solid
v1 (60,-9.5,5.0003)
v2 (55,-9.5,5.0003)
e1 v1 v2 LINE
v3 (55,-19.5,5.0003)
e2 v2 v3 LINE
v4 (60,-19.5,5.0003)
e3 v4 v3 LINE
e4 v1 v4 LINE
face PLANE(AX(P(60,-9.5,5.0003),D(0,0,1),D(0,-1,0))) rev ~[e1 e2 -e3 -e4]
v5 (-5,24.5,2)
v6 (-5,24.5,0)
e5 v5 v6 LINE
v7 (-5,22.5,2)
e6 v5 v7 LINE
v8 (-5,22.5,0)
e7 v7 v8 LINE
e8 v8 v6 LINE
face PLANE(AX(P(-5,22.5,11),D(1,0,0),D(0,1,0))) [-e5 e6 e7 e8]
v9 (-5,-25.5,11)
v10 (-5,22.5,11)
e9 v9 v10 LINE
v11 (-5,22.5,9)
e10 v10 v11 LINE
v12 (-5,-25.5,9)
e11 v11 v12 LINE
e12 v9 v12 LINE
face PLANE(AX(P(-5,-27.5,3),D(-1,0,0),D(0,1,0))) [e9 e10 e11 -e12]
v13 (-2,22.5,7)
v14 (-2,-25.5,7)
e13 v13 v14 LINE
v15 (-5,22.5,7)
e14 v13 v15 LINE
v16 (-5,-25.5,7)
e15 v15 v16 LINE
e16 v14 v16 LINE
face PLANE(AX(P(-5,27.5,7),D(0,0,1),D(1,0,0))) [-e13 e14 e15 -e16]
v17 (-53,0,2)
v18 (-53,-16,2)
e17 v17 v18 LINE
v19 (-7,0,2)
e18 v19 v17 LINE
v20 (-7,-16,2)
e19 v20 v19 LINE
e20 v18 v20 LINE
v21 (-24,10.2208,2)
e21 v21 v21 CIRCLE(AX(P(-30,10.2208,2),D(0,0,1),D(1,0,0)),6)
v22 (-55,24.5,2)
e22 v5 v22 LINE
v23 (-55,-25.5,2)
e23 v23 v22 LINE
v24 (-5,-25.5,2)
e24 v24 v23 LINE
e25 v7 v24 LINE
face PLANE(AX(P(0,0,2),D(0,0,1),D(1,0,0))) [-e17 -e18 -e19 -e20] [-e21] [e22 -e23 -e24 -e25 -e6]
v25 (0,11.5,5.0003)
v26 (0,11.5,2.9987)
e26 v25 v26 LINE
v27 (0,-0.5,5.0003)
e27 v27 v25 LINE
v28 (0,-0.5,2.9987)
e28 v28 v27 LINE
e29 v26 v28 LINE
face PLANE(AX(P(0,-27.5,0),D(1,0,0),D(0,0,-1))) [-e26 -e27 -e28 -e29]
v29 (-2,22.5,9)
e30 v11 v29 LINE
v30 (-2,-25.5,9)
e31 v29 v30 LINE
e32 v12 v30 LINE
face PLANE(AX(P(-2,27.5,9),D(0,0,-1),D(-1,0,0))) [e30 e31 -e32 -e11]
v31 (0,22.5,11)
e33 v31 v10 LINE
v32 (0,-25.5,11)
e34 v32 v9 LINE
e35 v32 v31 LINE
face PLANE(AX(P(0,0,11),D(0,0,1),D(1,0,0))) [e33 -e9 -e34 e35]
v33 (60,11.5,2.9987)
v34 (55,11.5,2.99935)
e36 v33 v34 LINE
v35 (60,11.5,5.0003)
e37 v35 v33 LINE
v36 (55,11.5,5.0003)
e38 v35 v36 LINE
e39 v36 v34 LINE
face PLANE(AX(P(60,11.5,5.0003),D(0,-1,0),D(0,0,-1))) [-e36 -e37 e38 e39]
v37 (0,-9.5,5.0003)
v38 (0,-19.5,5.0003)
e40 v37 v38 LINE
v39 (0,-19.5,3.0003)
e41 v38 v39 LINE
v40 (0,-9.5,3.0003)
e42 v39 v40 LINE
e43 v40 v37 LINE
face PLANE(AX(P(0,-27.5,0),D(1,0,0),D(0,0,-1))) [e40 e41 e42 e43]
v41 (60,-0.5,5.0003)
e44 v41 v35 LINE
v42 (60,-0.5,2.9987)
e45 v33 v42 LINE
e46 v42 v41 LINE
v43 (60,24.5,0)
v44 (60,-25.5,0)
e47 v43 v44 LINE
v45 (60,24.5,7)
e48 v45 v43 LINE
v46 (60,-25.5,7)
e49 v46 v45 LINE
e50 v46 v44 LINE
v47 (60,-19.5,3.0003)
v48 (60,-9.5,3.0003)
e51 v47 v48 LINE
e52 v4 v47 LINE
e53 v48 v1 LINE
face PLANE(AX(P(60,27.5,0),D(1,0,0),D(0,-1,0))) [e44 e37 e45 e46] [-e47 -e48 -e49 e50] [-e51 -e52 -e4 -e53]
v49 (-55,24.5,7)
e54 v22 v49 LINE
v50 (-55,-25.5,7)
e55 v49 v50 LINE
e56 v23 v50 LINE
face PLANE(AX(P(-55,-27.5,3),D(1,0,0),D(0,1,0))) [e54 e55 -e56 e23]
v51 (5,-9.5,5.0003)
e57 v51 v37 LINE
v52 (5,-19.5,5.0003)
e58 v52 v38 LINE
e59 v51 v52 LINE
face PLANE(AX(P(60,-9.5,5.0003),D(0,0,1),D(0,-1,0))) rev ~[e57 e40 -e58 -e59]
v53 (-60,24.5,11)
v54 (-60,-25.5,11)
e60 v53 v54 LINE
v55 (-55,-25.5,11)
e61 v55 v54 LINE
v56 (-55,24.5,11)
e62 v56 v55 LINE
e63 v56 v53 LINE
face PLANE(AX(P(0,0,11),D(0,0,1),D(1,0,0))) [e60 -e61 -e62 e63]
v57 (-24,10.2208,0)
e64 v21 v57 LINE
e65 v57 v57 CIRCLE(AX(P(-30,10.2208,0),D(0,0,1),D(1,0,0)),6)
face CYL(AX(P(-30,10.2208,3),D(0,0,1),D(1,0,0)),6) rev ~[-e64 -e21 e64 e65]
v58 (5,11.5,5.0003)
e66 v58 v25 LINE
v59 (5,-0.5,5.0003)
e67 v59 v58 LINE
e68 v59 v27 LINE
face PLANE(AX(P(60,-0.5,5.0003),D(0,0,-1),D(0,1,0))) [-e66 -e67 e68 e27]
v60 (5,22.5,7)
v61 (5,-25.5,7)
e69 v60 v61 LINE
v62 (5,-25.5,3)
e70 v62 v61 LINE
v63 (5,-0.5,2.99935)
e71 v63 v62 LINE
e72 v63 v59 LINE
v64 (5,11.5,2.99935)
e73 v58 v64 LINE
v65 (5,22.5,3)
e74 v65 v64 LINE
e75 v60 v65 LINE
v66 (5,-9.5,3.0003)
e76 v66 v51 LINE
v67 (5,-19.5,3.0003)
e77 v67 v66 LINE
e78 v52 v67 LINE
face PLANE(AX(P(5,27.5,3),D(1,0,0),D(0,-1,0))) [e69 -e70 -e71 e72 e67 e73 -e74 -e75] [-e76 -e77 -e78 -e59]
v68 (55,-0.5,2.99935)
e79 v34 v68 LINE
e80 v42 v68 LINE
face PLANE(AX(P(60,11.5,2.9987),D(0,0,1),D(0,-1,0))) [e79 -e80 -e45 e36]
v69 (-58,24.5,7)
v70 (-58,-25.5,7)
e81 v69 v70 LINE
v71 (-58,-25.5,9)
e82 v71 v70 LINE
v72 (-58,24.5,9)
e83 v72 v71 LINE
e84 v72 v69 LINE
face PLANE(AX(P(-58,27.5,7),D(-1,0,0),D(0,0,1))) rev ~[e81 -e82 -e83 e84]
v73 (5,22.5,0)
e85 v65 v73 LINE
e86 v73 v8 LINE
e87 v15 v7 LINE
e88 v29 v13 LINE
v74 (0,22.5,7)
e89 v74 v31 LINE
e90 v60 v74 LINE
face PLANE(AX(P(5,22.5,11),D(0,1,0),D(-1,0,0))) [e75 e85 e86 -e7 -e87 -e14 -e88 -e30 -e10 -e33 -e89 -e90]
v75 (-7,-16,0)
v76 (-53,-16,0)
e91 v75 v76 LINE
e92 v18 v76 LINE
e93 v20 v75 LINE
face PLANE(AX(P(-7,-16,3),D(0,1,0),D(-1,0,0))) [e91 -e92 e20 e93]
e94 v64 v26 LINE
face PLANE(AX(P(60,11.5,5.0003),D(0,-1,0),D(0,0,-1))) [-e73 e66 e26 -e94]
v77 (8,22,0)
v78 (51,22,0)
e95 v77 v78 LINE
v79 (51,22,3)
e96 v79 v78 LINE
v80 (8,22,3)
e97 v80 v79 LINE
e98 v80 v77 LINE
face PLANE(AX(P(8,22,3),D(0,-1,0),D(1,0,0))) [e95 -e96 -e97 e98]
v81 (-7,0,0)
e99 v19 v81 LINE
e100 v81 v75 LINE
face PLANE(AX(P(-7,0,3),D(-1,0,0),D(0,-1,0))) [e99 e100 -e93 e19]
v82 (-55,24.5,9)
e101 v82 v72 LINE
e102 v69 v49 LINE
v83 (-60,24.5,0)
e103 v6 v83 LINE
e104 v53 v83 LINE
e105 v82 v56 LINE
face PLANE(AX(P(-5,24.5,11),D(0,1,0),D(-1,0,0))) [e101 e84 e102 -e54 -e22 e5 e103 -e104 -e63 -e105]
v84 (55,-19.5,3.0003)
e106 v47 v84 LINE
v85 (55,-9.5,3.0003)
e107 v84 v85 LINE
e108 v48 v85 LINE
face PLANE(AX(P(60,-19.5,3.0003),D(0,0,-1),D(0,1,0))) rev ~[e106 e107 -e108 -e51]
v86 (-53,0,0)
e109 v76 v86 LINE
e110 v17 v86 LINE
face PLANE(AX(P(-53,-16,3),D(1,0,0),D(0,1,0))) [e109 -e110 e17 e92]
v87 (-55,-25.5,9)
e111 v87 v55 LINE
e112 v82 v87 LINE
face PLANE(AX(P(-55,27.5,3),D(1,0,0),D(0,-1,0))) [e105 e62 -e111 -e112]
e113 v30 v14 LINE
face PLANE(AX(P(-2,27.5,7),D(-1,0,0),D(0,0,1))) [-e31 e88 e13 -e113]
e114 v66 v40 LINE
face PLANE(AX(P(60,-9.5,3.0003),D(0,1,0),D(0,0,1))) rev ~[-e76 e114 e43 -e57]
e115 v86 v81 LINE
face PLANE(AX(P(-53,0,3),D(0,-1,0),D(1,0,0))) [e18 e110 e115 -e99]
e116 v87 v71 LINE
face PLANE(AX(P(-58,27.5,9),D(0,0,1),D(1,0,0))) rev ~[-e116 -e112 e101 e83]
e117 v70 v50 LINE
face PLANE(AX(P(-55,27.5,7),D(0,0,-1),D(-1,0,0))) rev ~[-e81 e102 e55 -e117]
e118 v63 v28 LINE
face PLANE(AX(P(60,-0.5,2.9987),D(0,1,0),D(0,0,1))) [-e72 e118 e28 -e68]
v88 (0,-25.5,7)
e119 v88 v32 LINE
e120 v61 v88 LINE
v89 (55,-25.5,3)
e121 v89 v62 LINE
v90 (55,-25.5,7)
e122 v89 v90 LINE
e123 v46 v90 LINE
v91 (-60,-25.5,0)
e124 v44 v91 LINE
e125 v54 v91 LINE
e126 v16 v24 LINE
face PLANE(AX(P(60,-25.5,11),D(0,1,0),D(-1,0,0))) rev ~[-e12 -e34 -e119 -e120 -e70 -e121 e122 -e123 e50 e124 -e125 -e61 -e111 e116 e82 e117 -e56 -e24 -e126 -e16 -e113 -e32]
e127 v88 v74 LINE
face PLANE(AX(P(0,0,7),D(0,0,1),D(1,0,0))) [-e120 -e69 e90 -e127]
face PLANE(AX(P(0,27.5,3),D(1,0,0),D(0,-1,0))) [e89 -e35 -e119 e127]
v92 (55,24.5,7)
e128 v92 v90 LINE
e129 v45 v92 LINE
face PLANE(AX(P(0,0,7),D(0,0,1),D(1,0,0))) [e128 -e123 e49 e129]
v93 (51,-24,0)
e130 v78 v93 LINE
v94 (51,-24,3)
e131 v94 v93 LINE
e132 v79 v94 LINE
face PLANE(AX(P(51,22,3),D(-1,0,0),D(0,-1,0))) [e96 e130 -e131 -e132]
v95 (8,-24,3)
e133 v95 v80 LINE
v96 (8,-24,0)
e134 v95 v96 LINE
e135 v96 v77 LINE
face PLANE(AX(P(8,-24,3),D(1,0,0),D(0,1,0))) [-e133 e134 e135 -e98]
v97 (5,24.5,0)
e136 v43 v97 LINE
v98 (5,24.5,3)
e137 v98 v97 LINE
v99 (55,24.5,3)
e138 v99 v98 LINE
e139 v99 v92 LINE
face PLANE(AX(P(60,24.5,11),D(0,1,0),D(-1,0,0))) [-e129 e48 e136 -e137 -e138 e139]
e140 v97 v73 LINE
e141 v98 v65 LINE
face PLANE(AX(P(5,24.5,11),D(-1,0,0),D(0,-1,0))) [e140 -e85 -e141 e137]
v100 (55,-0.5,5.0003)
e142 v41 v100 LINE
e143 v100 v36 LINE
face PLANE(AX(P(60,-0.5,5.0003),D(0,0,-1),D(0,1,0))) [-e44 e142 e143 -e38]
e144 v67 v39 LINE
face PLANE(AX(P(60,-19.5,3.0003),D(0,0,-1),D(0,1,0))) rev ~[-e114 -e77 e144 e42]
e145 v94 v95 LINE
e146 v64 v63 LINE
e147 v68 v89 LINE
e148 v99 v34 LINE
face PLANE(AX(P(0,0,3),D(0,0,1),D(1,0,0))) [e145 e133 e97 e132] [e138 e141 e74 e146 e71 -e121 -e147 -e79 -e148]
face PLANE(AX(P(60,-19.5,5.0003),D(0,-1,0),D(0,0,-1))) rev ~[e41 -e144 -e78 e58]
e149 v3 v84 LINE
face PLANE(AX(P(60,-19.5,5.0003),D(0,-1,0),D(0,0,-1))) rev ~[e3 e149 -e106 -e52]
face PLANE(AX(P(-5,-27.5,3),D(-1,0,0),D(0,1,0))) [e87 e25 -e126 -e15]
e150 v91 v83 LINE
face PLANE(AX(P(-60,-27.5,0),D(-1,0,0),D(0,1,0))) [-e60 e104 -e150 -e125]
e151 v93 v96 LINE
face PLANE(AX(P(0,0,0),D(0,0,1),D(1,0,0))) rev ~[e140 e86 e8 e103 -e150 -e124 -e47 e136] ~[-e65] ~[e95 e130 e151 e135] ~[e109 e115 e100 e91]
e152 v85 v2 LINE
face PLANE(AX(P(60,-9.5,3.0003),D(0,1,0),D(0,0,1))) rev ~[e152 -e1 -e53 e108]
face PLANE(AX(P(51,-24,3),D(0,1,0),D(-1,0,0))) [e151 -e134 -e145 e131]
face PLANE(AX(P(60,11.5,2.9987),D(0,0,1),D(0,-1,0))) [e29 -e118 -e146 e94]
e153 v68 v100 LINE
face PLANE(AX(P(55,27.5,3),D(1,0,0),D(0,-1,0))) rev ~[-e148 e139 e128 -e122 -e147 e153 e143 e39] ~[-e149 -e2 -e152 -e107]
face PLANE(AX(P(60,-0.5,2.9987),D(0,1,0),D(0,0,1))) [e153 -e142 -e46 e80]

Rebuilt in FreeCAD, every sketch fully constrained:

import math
import FreeCAD as App
import Part
import Sketcher
from FreeCAD import Vector
Q = App.Units.Quantity

doc = App.newDocument("Part")
body = doc.addObject("PartDesign::Body", "Body")

sketch1 = doc.addObject("Sketcher::SketchObject", "Sketch")
body.addObject(sketch1)
sketch1.AttachmentSupport = (doc.XY_Plane, [""])
sketch1.MapMode = "FlatFace"
sketch1.addGeometry([
    Part.LineSegment(Vector(-4, 27.5, 0), Vector(-60, 27.5, 0)),
    Part.LineSegment(Vector(-60, 27.5, 0), Vector(-60, -27.5, 0)),
    Part.LineSegment(Vector(-60, -27.5, 0), Vector(60, -27.5, 0)),
    Part.LineSegment(Vector(60, -27.5, 0), Vector(60, 27.5, 0)),
    Part.LineSegment(Vector(60, 27.5, 0), Vector(4, 27.5, 0)),
    Part.ArcOfCircle(Part.Circle(Vector(0, 27.5, 0), Vector(0, 0, 1), 4), math.radians(180), math.radians(360)),
    Part.LineSegment(Vector(-50, -3, 0), Vector(-40, -3, 0)),
    Part.LineSegment(Vector(-40, -3, 0), Vector(-40, -13, 0)),
    Part.LineSegment(Vector(-40, -13, 0), Vector(-50, -13, 0)),
    Part.LineSegment(Vector(-50, -13, 0), Vector(-50, -3, 0)),
    Part.LineSegment(Vector(-35, -3, 0), Vector(-25, -3, 0)),
    Part.LineSegment(Vector(-25, -3, 0), Vector(-25, -13, 0)),
    Part.LineSegment(Vector(-25, -13, 0), Vector(-35, -13, 0)),
    Part.LineSegment(Vector(-35, -13, 0), Vector(-35, -3, 0)),
    Part.LineSegment(Vector(-10, -3, 0), Vector(-10, -13, 0)),
    Part.LineSegment(Vector(-10, -13, 0), Vector(-20, -13, 0)),
    Part.LineSegment(Vector(-20, -13, 0), Vector(-20, -3, 0)),
    Part.LineSegment(Vector(-20, -3, 0), Vector(-10, -3, 0)),
    Part.Circle(Vector(-30, 10.2, 0), Vector(0, 0, 1), 3),
    Part.LineSegment(Vector(50, -17, 0), Vector(10, -17, 0)),
    Part.LineSegment(Vector(10, -17, 0), Vector(10, 17, 0)),
    Part.LineSegment(Vector(10, 17, 0), Vector(50, 17, 0)),
    Part.LineSegment(Vector(50, 17, 0), Vector(50, -17, 0)),
], False)
sketch1.addConstraint([
    Sketcher.Constraint("Coincident", 0, 2, 1, 1),
    Sketcher.Constraint("Coincident", 1, 2, 2, 1),
    Sketcher.Constraint("Coincident", 2, 2, 3, 1),
    Sketcher.Constraint("Coincident", 3, 2, 4, 1),
    Sketcher.Constraint("Coincident", 4, 2, 5, 2),
    Sketcher.Constraint("Coincident", 5, 1, 0, 1),
    Sketcher.Constraint("Coincident", 6, 2, 7, 1),
    Sketcher.Constraint("Coincident", 7, 2, 8, 1),
    Sketcher.Constraint("Coincident", 8, 2, 9, 1),
    Sketcher.Constraint("Coincident", 9, 2, 6, 1),
    Sketcher.Constraint("Coincident", 10, 2, 11, 1),
    Sketcher.Constraint("Coincident", 11, 2, 12, 1),
    Sketcher.Constraint("Coincident", 12, 2, 13, 1),
    Sketcher.Constraint("Coincident", 13, 2, 10, 1),
    Sketcher.Constraint("Coincident", 14, 2, 15, 1),
    Sketcher.Constraint("Coincident", 15, 2, 16, 1),
    Sketcher.Constraint("Coincident", 16, 2, 17, 1),
    Sketcher.Constraint("Coincident", 17, 2, 14, 1),
    Sketcher.Constraint("Coincident", 19, 2, 20, 1),
    Sketcher.Constraint("Coincident", 20, 2, 21, 1),
    Sketcher.Constraint("Coincident", 21, 2, 22, 1),
    Sketcher.Constraint("Coincident", 22, 2, 19, 1),
    Sketcher.Constraint("Horizontal", 0),
    Sketcher.Constraint("Vertical", 1),
    Sketcher.Constraint("Horizontal", 2),
    Sketcher.Constraint("Vertical", 3),
    Sketcher.Constraint("Horizontal", 4),
    Sketcher.Constraint("Horizontal", 6),
    Sketcher.Constraint("Vertical", 7),
    Sketcher.Constraint("Horizontal", 8),
    Sketcher.Constraint("Vertical", 9),
    Sketcher.Constraint("Horizontal", 10),
    Sketcher.Constraint("Vertical", 11),
    Sketcher.Constraint("Horizontal", 12),
    Sketcher.Constraint("Vertical", 13),
    Sketcher.Constraint("Vertical", 14),
    Sketcher.Constraint("Horizontal", 15),
    Sketcher.Constraint("Vertical", 16),
    Sketcher.Constraint("Horizontal", 17),
    Sketcher.Constraint("Horizontal", 19),
    Sketcher.Constraint("Vertical", 20),
    Sketcher.Constraint("Horizontal", 21),
    Sketcher.Constraint("Vertical", 22),
    Sketcher.Constraint("Symmetric", 0, 2, 2, 2, -1, 1),
    Sketcher.Constraint("Symmetric", 4, 2, 5, 1, -2),
    Sketcher.Constraint("Horizontal", 5, 3, 0, 2),
    Sketcher.Constraint("Horizontal", 9, 2, 10, 2),
    Sketcher.Constraint("Horizontal", 8, 2, 11, 2),
    Sketcher.Constraint("Horizontal", 12, 2, 14, 2),
    Sketcher.Constraint("Horizontal", 13, 2, 16, 2),
    Sketcher.Constraint("Equal", 8, 10),
    Sketcher.Constraint("Equal", 12, 15),
    Sketcher.Constraint("Equal", 17, 7),
    Sketcher.Constraint("Diameter", 18, Q("6 mm")),
    Sketcher.Constraint("Radius", 5, Q("4 mm")),
    Sketcher.Constraint("DistanceX", 4, 2, 20, 2, Q("6 mm")),
    Sketcher.Constraint("DistanceX", 0, 2, 0, 1, Q("56 mm")),
    Sketcher.Constraint("DistanceX", 6, 1, 6, 2, Q("10 mm")),
    Sketcher.Constraint("DistanceX", 19, 2, 19, 1, Q("40 mm")),
    Sketcher.Constraint("DistanceY", 1, 2, 1, 1, Q("55 mm")),
    Sketcher.Constraint("DistanceY", 20, 1, 20, 2, Q("34 mm")),
    Sketcher.Constraint("DistanceX", 18, 3, -1, 1, Q("30 mm")),
    Sketcher.Constraint("DistanceX", 6, 2, -1, 1, Q("40 mm")),
    Sketcher.Constraint("DistanceY", 6, 2, -1, 1, Q("3 mm")),
    Sketcher.Constraint("DistanceX", 10, 2, -1, 1, Q("25 mm")),
    Sketcher.Constraint("DistanceX", 14, 2, -1, 1, Q("10 mm")),
    Sketcher.Constraint("DistanceY", 19, 2, -1, 1, Q("17 mm")),
    Sketcher.Constraint("DistanceY", -1, 1, 18, 3, Q("10.2208 mm")),
])
pad1 = doc.addObject("PartDesign::Pad", "Pad")
body.addObject(pad1)
pad1.Profile = sketch1
pad1.Length = 3

sketch2 = doc.addObject("Sketcher::SketchObject", "Sketch001")
body.addObject(sketch2)
sketch2.AttachmentSupport = (doc.XY_Plane, [""])
sketch2.MapMode = "FlatFace"
sketch2.AttachmentOffset = App.Placement(Vector(0, 0, 3), App.Rotation())
sketch2.addGeometry([
    Part.LineSegment(Vector(51, 22, 0), Vector(8, 22, 0)),
    Part.LineSegment(Vector(8, 22, 0), Vector(8, -24, 0)),
    Part.LineSegment(Vector(8, -24, 0), Vector(51, -24, 0)),
    Part.LineSegment(Vector(51, -24, 0), Vector(51, 22, 0)),
    Part.LineSegment(Vector(10, -17, 0), Vector(10, 17, 0)),
    Part.LineSegment(Vector(10, 17, 0), Vector(50, 17, 0)),
    Part.LineSegment(Vector(50, 17, 0), Vector(50, -17, 0)),
    Part.LineSegment(Vector(50, -17, 0), Vector(10, -17, 0)),
    Part.Circle(Vector(-30, 10.2, 0), Vector(0, 0, 1), 6),
    Part.Circle(Vector(-30, 10.2, 0), Vector(0, 0, 1), 3),
    Part.LineSegment(Vector(-7, 0, 0), Vector(-53, 0, 0)),
    Part.LineSegment(Vector(-53, 0, 0), Vector(-53, -16, 0)),
    Part.LineSegment(Vector(-53, -16, 0), Vector(-7, -16, 0)),
    Part.LineSegment(Vector(-7, -16, 0), Vector(-7, 0, 0)),
], False)
sketch2.addConstraint([
    Sketcher.Constraint("Coincident", 0, 2, 1, 1),
    Sketcher.Constraint("Coincident", 1, 2, 2, 1),
    Sketcher.Constraint("Coincident", 2, 2, 3, 1),
    Sketcher.Constraint("Coincident", 3, 2, 0, 1),
    Sketcher.Constraint("Coincident", 4, 2, 5, 1),
    Sketcher.Constraint("Coincident", 5, 2, 6, 1),
    Sketcher.Constraint("Coincident", 6, 2, 7, 1),
    Sketcher.Constraint("Coincident", 7, 2, 4, 1),
    Sketcher.Constraint("Coincident", 10, 2, 11, 1),
    Sketcher.Constraint("Coincident", 11, 2, 12, 1),
    Sketcher.Constraint("Coincident", 12, 2, 13, 1),
    Sketcher.Constraint("Coincident", 13, 2, 10, 1),
    Sketcher.Constraint("Horizontal", 0),
    Sketcher.Constraint("Vertical", 1),
    Sketcher.Constraint("Horizontal", 2),
    Sketcher.Constraint("Vertical", 3),
    Sketcher.Constraint("Vertical", 4),
    Sketcher.Constraint("Horizontal", 5),
    Sketcher.Constraint("Vertical", 6),
    Sketcher.Constraint("Horizontal", 7),
    Sketcher.Constraint("Horizontal", 10),
    Sketcher.Constraint("Vertical", 11),
    Sketcher.Constraint("Horizontal", 12),
    Sketcher.Constraint("Vertical", 13),
    Sketcher.Constraint("Coincident", 9, 3, 8, 3),
    Sketcher.Constraint("PointOnObject", 10, 2, -1),
    Sketcher.Constraint("Equal", 12, 1),
    Sketcher.Constraint("Diameter", 8, Q("12 mm")),
    Sketcher.Constraint("Diameter", 9, Q("6 mm")),
    Sketcher.Constraint("DistanceX", 12, 2, -1, 1, Q("7 mm")),
    Sketcher.Constraint("DistanceX", 0, 2, 4, 2, Q("2 mm")),
    Sketcher.Constraint("DistanceY", 4, 2, 0, 2, Q("5 mm")),
    Sketcher.Constraint("DistanceX", 5, 2, 3, 2, Q("1 mm")),
    Sketcher.Constraint("DistanceY", 2, 2, 6, 2, Q("7 mm")),
    Sketcher.Constraint("DistanceY", 7, 2, 11, 2, Q("1 mm")),
    Sketcher.Constraint("DistanceX", 0, 2, 0, 1, Q("43 mm")),
    Sketcher.Constraint("DistanceX", 10, 2, 10, 1, Q("46 mm")),
    Sketcher.Constraint("DistanceY", 11, 2, 11, 1, Q("16 mm")),
    Sketcher.Constraint("DistanceX", 8, 3, -1, 1, Q("30 mm")),
    Sketcher.Constraint("DistanceX", -1, 1, 0, 2, Q("8 mm")),
    Sketcher.Constraint("DistanceY", -1, 1, 8, 3, Q("10.2208 mm")),
])
pocket1 = doc.addObject("PartDesign::Pocket", "Pocket")
body.addObject(pocket1)
pocket1.Profile = sketch2
pocket1.Length = 3

sketch3 = doc.addObject("Sketcher::SketchObject", "Sketch002")
body.addObject(sketch3)
sketch3.AttachmentSupport = (doc.XY_Plane, [""])
sketch3.MapMode = "FlatFace"
sketch3.AttachmentOffset = App.Placement(Vector(0, 0, 3), App.Rotation())
sketch3.addGeometry([
    Part.LineSegment(Vector(-55, 28, 0), Vector(-60, 28, 0)),
    Part.LineSegment(Vector(-60, 28, 0), Vector(-60, -28, 0)),
    Part.LineSegment(Vector(-60, -28, 0), Vector(-55, -28, 0)),
    Part.LineSegment(Vector(-55, -28, 0), Vector(-55, 28, 0)),
    Part.LineSegment(Vector(-5, 28, 0), Vector(-5, -28, 0)),
    Part.LineSegment(Vector(-5, -28, 0), Vector(0, -28, 0)),
    Part.LineSegment(Vector(0, -28, 0), Vector(0, 28, 0)),
    Part.LineSegment(Vector(0, 28, 0), Vector(-5, 28, 0)),
], False)
sketch3.addConstraint([
    Sketcher.Constraint("Coincident", 0, 2, 1, 1),
    Sketcher.Constraint("Coincident", 1, 2, 2, 1),
    Sketcher.Constraint("Coincident", 2, 2, 3, 1),
    Sketcher.Constraint("Coincident", 3, 2, 0, 1),
    Sketcher.Constraint("Coincident", 4, 2, 5, 1),
    Sketcher.Constraint("Coincident", 5, 2, 6, 1),
    Sketcher.Constraint("Coincident", 6, 2, 7, 1),
    Sketcher.Constraint("Coincident", 7, 2, 4, 1),
    Sketcher.Constraint("Horizontal", 0),
    Sketcher.Constraint("Vertical", 1),
    Sketcher.Constraint("Horizontal", 2),
    Sketcher.Constraint("Vertical", 3),
    Sketcher.Constraint("Vertical", 4),
    Sketcher.Constraint("Horizontal", 5),
    Sketcher.Constraint("Vertical", 6),
    Sketcher.Constraint("Horizontal", 7),
    Sketcher.Constraint("Symmetric", 5, 2, 6, 2, -1, 1),
    Sketcher.Constraint("Horizontal", 2, 2, 4, 2),
    Sketcher.Constraint("Horizontal", 3, 2, 6, 2),
    Sketcher.Constraint("Equal", 2, 5),
    Sketcher.Constraint("DistanceX", 0, 2, 0, 1, Q("5 mm")),
    Sketcher.Constraint("DistanceY", 1, 2, 1, 1, Q("55 mm")),
    Sketcher.Constraint("DistanceX", 0, 2, -1, 1, Q("60 mm")),
])
pad2 = doc.addObject("PartDesign::Pad", "Pad001")
body.addObject(pad2)
pad2.Profile = sketch3
pad2.Length = 8

sketch4 = doc.addObject("Sketcher::SketchObject", "Sketch003")
body.addObject(sketch4)
sketch4.AttachmentSupport = (doc.XZ_Plane, [""])
sketch4.MapMode = "FlatFace"
sketch4.AttachmentOffset = App.Placement(Vector(0, 0, -27.5), App.Rotation())
sketch4.addGeometry([
    Part.LineSegment(Vector(-55, 9, 0), Vector(-55, 7, 0)),
    Part.LineSegment(Vector(-55, 7, 0), Vector(-58, 7, 0)),
    Part.LineSegment(Vector(-58, 7, 0), Vector(-58, 9, 0)),
    Part.LineSegment(Vector(-58, 9, 0), Vector(-55, 9, 0)),
    Part.LineSegment(Vector(-2, 7, 0), Vector(-5, 7, 0)),
    Part.LineSegment(Vector(-5, 7, 0), Vector(-5, 9, 0)),
    Part.LineSegment(Vector(-5, 9, 0), Vector(-2, 9, 0)),
    Part.LineSegment(Vector(-2, 9, 0), Vector(-2, 7, 0)),
], False)
sketch4.addConstraint([
    Sketcher.Constraint("Coincident", 0, 2, 1, 1),
    Sketcher.Constraint("Coincident", 1, 2, 2, 1),
    Sketcher.Constraint("Coincident", 2, 2, 3, 1),
    Sketcher.Constraint("Coincident", 3, 2, 0, 1),
    Sketcher.Constraint("Coincident", 4, 2, 5, 1),
    Sketcher.Constraint("Coincident", 5, 2, 6, 1),
    Sketcher.Constraint("Coincident", 6, 2, 7, 1),
    Sketcher.Constraint("Coincident", 7, 2, 4, 1),
    Sketcher.Constraint("Vertical", 0),
    Sketcher.Constraint("Horizontal", 1),
    Sketcher.Constraint("Vertical", 2),
    Sketcher.Constraint("Horizontal", 3),
    Sketcher.Constraint("Horizontal", 4),
    Sketcher.Constraint("Vertical", 5),
    Sketcher.Constraint("Horizontal", 6),
    Sketcher.Constraint("Vertical", 7),
    Sketcher.Constraint("Horizontal", 1, 2, 4, 2),
    Sketcher.Constraint("Horizontal", 3, 2, 5, 2),
    Sketcher.Constraint("Equal", 3, 4),
    Sketcher.Constraint("DistanceX", 1, 2, 1, 1, Q("3 mm")),
    Sketcher.Constraint("DistanceY", 0, 2, 0, 1, Q("2 mm")),
    Sketcher.Constraint("DistanceX", 6, 2, -1, 1, Q("2 mm")),
    Sketcher.Constraint("DistanceX", 0, 2, -1, 1, Q("55 mm")),
    Sketcher.Constraint("DistanceY", -1, 1, 0, 2, Q("7 mm")),
])
pocket2 = doc.addObject("PartDesign::Pocket", "Pocket001")
body.addObject(pocket2)
pocket2.Profile = sketch4
pocket2.Type = "ThroughAll"
pocket2.Reversed = True

sketch5 = doc.addObject("Sketcher::SketchObject", "Sketch004")
body.addObject(sketch5)
sketch5.AttachmentSupport = (doc.XY_Plane, [""])
sketch5.MapMode = "FlatFace"
sketch5.AttachmentOffset = App.Placement(Vector(0, 0, 3), App.Rotation())
sketch5.addGeometry([
    Part.LineSegment(Vector(-55, 28, 0), Vector(-55, -28, 0)),
    Part.LineSegment(Vector(-55, -28, 0), Vector(-5, -28, 0)),
    Part.LineSegment(Vector(-5, -28, 0), Vector(-5, 28, 0)),
    Part.LineSegment(Vector(-5, 28, 0), Vector(-55, 28, 0)),
], False)
sketch5.addConstraint([
    Sketcher.Constraint("Coincident", 0, 2, 1, 1),
    Sketcher.Constraint("Coincident", 1, 2, 2, 1),
    Sketcher.Constraint("Coincident", 2, 2, 3, 1),
    Sketcher.Constraint("Coincident", 3, 2, 0, 1),
    Sketcher.Constraint("Vertical", 0),
    Sketcher.Constraint("Horizontal", 1),
    Sketcher.Constraint("Vertical", 2),
    Sketcher.Constraint("Horizontal", 3),
    Sketcher.Constraint("DistanceX", 1, 1, 1, 2, Q("50 mm")),
    Sketcher.Constraint("DistanceY", 0, 2, 0, 1, Q("55 mm")),
    Sketcher.Constraint("DistanceX", 0, 2, -1, 1, Q("55 mm")),
    Sketcher.Constraint("DistanceY", 0, 2, -1, 1, Q("27.5 mm")),
])
pocket3 = doc.addObject("PartDesign::Pocket", "Pocket002")
body.addObject(pocket3)
pocket3.Profile = sketch5
pocket3.Length = 1

sketch6 = doc.addObject("Sketcher::SketchObject", "Sketch005")
body.addObject(sketch6)
sketch6.AttachmentSupport = (doc.XY_Plane, [""])
sketch6.MapMode = "FlatFace"
sketch6.AttachmentOffset = App.Placement(Vector(0, 0, 3), App.Rotation())
sketch6.addGeometry([
    Part.LineSegment(Vector(55, 28, 0), Vector(55, -28, 0)),
    Part.LineSegment(Vector(55, -28, 0), Vector(60, -28, 0)),
    Part.LineSegment(Vector(60, -28, 0), Vector(60, 28, 0)),
    Part.LineSegment(Vector(60, 28, 0), Vector(55, 28, 0)),
    Part.LineSegment(Vector(0, 28, 0), Vector(0, -28, 0)),
    Part.LineSegment(Vector(0, -28, 0), Vector(5, -28, 0)),
    Part.LineSegment(Vector(5, -28, 0), Vector(5, 28, 0)),
    Part.LineSegment(Vector(5, 28, 0), Vector(0, 28, 0)),
], False)
sketch6.addConstraint([
    Sketcher.Constraint("Coincident", 0, 2, 1, 1),
    Sketcher.Constraint("Coincident", 1, 2, 2, 1),
    Sketcher.Constraint("Coincident", 2, 2, 3, 1),
    Sketcher.Constraint("Coincident", 3, 2, 0, 1),
    Sketcher.Constraint("Coincident", 4, 2, 5, 1),
    Sketcher.Constraint("Coincident", 5, 2, 6, 1),
    Sketcher.Constraint("Coincident", 6, 2, 7, 1),
    Sketcher.Constraint("Coincident", 7, 2, 4, 1),
    Sketcher.Constraint("Vertical", 0),
    Sketcher.Constraint("Horizontal", 1),
    Sketcher.Constraint("Vertical", 2),
    Sketcher.Constraint("Horizontal", 3),
    Sketcher.Constraint("Vertical", 4),
    Sketcher.Constraint("Horizontal", 5),
    Sketcher.Constraint("Vertical", 6),
    Sketcher.Constraint("Horizontal", 7),
    Sketcher.Constraint("Symmetric", 4, 2, 7, 2, -1, 1),
    Sketcher.Constraint("Horizontal", 1, 2, 4, 2),
    Sketcher.Constraint("Horizontal", 3, 2, 6, 2),
    Sketcher.Constraint("Equal", 3, 5),
    Sketcher.Constraint("DistanceX", 1, 1, 1, 2, Q("5 mm")),
    Sketcher.Constraint("DistanceY", 0, 2, 0, 1, Q("55 mm")),
    Sketcher.Constraint("DistanceX", -1, 1, 0, 2, Q("55 mm")),
])
pad3 = doc.addObject("PartDesign::Pad", "Pad002")
body.addObject(pad3)
pad3.Profile = sketch6
pad3.Length = 4

sketch7 = doc.addObject("Sketcher::SketchObject", "Sketch006")
body.addObject(sketch7)
sketch7.AttachmentSupport = (doc.YZ_Plane, [""])
sketch7.MapMode = "FlatFace"
sketch7.AttachmentOffset = App.Placement(Vector(0, 0, 60), App.Rotation())
sketch7.addGeometry([
    Part.LineSegment(Vector(-19.5, 5, 0), Vector(-19.5, 3, 0)),
    Part.LineSegment(Vector(-19.5, 3, 0), Vector(-9.5, 3, 0)),
    Part.LineSegment(Vector(-9.5, 3, 0), Vector(-9.5, 5, 0)),
    Part.LineSegment(Vector(-9.5, 5, 0), Vector(-19.5, 5, 0)),
    Part.LineSegment(Vector(-0.5, 3, 0), Vector(11.5, 3, 0)),
    Part.LineSegment(Vector(11.5, 3, 0), Vector(11.5, 5, 0)),
    Part.LineSegment(Vector(11.5, 5, 0), Vector(-0.5, 5, 0)),
    Part.LineSegment(Vector(-0.5, 5, 0), Vector(-0.5, 3, 0)),
], False)
sketch7.addConstraint([
    Sketcher.Constraint("Coincident", 0, 2, 1, 1),
    Sketcher.Constraint("Coincident", 1, 2, 2, 1),
    Sketcher.Constraint("Coincident", 2, 2, 3, 1),
    Sketcher.Constraint("Coincident", 3, 2, 0, 1),
    Sketcher.Constraint("Coincident", 4, 2, 5, 1),
    Sketcher.Constraint("Coincident", 5, 2, 6, 1),
    Sketcher.Constraint("Coincident", 6, 2, 7, 1),
    Sketcher.Constraint("Coincident", 7, 2, 4, 1),
    Sketcher.Constraint("Vertical", 0),
    Sketcher.Constraint("Horizontal", 1),
    Sketcher.Constraint("Vertical", 2),
    Sketcher.Constraint("Horizontal", 3),
    Sketcher.Constraint("Horizontal", 4),
    Sketcher.Constraint("Vertical", 5),
    Sketcher.Constraint("Horizontal", 6),
    Sketcher.Constraint("Vertical", 7),
    Sketcher.Constraint("Horizontal", 3, 2, 5, 2),
    Sketcher.Constraint("DistanceX", 1, 1, 1, 2, Q("10 mm")),
    Sketcher.Constraint("DistanceX", 4, 1, 4, 2, Q("12 mm")),
    Sketcher.Constraint("DistanceY", 0, 2, 0, 1, Q("2 mm")),
    Sketcher.Constraint("DistanceX", 1, 2, 4, 2, Q("21 mm")),
    Sketcher.Constraint("DistanceX", 0, 2, -1, 1, Q("19.5 mm")),
    Sketcher.Constraint("DistanceY", 5, 1, 5, 2, Q("2.0016 mm")),
    Sketcher.Constraint("DistanceY", -1, 1, 0, 2, Q("3.0003 mm")),
])
pocket4 = doc.addObject("PartDesign::Pocket", "Pocket003")
body.addObject(pocket4)
pocket4.Profile = sketch7
pocket4.Length = 60

sketch8 = doc.addObject("Sketcher::SketchObject", "Sketch007")
body.addObject(sketch8)
sketch8.AttachmentSupport = (doc.XY_Plane, [""])
sketch8.MapMode = "FlatFace"
sketch8.AttachmentOffset = App.Placement(Vector(0, 0, 11), App.Rotation())
sketch8.addGeometry([
    Part.LineSegment(Vector(-60, 27.5, 0), Vector(-60, 24.5, 0)),
    Part.LineSegment(Vector(-60, 24.5, 0), Vector(-5, 24.5, 0)),
    Part.LineSegment(Vector(-5, 24.5, 0), Vector(-5, 22.5, 0)),
    Part.LineSegment(Vector(-5, 22.5, 0), Vector(5, 22.5, 0)),
    Part.LineSegment(Vector(5, 22.5, 0), Vector(5, 24.5, 0)),
    Part.LineSegment(Vector(5, 24.5, 0), Vector(60, 24.5, 0)),
    Part.LineSegment(Vector(60, 24.5, 0), Vector(60, 27.5, 0)),
    Part.LineSegment(Vector(60, 27.5, 0), Vector(-60, 27.5, 0)),
    Part.LineSegment(Vector(60, -25.5, 0), Vector(-60, -25.5, 0)),
    Part.LineSegment(Vector(-60, -25.5, 0), Vector(-60, -27.5, 0)),
    Part.LineSegment(Vector(-60, -27.5, 0), Vector(60, -27.5, 0)),
    Part.LineSegment(Vector(60, -27.5, 0), Vector(60, -25.5, 0)),
], False)
sketch8.addConstraint([
    Sketcher.Constraint("Coincident", 0, 2, 1, 1),
    Sketcher.Constraint("Coincident", 1, 2, 2, 1),
    Sketcher.Constraint("Coincident", 2, 2, 3, 1),
    Sketcher.Constraint("Coincident", 3, 2, 4, 1),
    Sketcher.Constraint("Coincident", 4, 2, 5, 1),
    Sketcher.Constraint("Coincident", 5, 2, 6, 1),
    Sketcher.Constraint("Coincident", 6, 2, 7, 1),
    Sketcher.Constraint("Coincident", 7, 2, 0, 1),
    Sketcher.Constraint("Coincident", 8, 2, 9, 1),
    Sketcher.Constraint("Coincident", 9, 2, 10, 1),
    Sketcher.Constraint("Coincident", 10, 2, 11, 1),
    Sketcher.Constraint("Coincident", 11, 2, 8, 1),
    Sketcher.Constraint("Vertical", 0),
    Sketcher.Constraint("Horizontal", 1),
    Sketcher.Constraint("Vertical", 2),
    Sketcher.Constraint("Horizontal", 3),
    Sketcher.Constraint("Vertical", 4),
    Sketcher.Constraint("Horizontal", 5),
    Sketcher.Constraint("Vertical", 6),
    Sketcher.Constraint("Horizontal", 7),
    Sketcher.Constraint("Horizontal", 8),
    Sketcher.Constraint("Vertical", 9),
    Sketcher.Constraint("Horizontal", 10),
    Sketcher.Constraint("Vertical", 11),
    Sketcher.Constraint("Symmetric", 6, 2, 9, 2, -1, 1),
    Sketcher.Constraint("Symmetric", 1, 2, 4, 2, -2),
    Sketcher.Constraint("Vertical", 7, 2, 8, 2),
    Sketcher.Constraint("Vertical", 6, 2, 10, 2),
    Sketcher.Constraint("Equal", 4, 9),
    Sketcher.Constraint("DistanceY", 0, 2, 0, 1, Q("3 mm")),
    Sketcher.Constraint("DistanceY", 2, 2, 2, 1, Q("2 mm")),
    Sketcher.Constraint("DistanceX", 1, 1, 1, 2, Q("55 mm")),
    Sketcher.Constraint("DistanceX", 3, 1, 3, 2, Q("10 mm")),
    Sketcher.Constraint("DistanceY", 8, 2, 0, 2, Q("50 mm")),
])
pocket5 = doc.addObject("PartDesign::Pocket", "Pocket004")
body.addObject(pocket5)
pocket5.Profile = sketch8
pocket5.Type = "ThroughAll"

doc.recompute()
